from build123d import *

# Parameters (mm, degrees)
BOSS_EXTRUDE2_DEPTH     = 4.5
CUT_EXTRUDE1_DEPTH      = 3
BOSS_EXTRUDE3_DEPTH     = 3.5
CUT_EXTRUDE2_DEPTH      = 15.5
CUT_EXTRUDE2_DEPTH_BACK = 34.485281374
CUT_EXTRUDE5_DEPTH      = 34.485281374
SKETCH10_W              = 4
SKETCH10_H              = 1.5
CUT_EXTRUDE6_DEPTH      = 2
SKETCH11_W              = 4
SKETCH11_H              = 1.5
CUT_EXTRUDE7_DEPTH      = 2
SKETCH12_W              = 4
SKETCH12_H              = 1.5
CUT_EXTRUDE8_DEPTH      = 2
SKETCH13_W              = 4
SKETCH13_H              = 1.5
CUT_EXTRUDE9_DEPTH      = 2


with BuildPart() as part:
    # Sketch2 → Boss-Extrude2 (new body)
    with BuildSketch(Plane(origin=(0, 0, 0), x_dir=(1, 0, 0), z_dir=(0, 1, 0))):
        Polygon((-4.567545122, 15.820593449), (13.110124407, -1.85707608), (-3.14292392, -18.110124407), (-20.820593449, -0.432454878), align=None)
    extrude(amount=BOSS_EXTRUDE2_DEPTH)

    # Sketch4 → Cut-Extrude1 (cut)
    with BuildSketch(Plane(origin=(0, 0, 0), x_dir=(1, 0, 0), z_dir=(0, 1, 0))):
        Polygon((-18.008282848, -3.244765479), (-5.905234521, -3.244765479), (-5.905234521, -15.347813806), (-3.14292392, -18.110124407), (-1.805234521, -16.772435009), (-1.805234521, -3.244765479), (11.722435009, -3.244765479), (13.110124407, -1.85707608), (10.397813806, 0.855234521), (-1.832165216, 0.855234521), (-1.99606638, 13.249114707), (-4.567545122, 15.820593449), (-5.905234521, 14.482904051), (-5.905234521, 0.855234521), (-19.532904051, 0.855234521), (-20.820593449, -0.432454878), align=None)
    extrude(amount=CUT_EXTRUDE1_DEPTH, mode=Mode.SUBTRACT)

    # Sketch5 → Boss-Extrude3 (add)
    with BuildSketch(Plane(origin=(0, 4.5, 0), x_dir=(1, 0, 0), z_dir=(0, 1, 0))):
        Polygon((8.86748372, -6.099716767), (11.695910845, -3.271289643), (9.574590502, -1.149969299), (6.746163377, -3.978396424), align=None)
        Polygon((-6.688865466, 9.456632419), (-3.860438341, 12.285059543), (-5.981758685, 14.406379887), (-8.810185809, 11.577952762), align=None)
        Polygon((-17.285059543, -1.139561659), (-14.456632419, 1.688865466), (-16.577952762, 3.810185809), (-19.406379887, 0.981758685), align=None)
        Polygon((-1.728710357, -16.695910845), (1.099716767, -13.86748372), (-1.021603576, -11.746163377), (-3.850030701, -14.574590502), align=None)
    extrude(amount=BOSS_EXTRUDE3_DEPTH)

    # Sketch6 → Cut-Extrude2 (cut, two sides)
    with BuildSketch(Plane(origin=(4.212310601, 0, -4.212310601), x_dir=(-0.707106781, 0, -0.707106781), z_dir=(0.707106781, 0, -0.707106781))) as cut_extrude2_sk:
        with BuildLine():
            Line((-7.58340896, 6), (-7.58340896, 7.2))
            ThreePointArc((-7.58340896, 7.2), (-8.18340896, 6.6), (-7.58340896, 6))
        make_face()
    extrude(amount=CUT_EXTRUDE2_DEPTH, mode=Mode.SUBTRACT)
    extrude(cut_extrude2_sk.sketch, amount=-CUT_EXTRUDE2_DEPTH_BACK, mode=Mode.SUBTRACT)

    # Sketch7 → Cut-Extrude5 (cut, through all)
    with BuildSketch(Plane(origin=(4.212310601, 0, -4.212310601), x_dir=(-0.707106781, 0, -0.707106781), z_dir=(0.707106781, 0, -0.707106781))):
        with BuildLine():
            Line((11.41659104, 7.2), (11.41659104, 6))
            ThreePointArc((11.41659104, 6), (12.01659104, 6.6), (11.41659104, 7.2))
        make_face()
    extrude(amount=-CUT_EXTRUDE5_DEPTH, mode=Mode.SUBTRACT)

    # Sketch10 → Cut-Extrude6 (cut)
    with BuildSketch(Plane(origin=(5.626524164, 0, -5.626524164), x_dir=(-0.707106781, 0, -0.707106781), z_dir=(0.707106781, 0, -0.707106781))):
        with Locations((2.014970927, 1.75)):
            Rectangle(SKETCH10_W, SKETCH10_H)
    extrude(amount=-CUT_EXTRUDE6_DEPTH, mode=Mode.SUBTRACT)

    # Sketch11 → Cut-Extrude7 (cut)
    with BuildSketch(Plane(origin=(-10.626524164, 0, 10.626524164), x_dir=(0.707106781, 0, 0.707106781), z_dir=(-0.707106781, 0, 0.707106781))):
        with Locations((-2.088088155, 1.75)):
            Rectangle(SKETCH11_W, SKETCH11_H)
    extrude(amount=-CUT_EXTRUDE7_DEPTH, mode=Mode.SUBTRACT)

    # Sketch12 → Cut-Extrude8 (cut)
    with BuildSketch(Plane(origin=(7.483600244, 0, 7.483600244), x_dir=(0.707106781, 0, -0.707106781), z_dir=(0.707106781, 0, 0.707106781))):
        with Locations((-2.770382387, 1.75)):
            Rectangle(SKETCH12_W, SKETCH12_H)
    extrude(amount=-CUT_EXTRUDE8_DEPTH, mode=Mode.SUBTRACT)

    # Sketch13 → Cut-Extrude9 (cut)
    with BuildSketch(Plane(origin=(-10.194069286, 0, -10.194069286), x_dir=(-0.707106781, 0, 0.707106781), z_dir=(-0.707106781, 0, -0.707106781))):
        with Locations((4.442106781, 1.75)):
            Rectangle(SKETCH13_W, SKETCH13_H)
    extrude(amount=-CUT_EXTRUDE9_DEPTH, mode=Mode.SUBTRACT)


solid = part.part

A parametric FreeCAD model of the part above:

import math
import FreeCAD as App
import Part
import Sketcher

V = App.Vector
Q = App.Units.Quantity

doc = App.newDocument("Part")
body = doc.addObject("PartDesign::Body", "Body")

sketch1 = doc.addObject("Sketcher::SketchObject", "Sketch")
body.addObject(sketch1)
sketch1.AttachmentSupport = (doc.XZ_Plane, [""])
sketch1.MapMode = "FlatFace"
sketch1.addGeometry([
    Part.LineSegment(V(13, 2, 0), V(-5, -16, 0)),
    Part.LineSegment(V(-5, -16, 0), V(-21, 0, 0)),
    Part.LineSegment(V(-21, 0, 0), V(-3, 18, 0)),
    Part.LineSegment(V(-3, 18, 0), V(13, 2, 0)),
], False)
sketch1.addConstraint([
    Sketcher.Constraint("Coincident", 0, 2, 1, 1),
    Sketcher.Constraint("Coincident", 1, 2, 2, 1),
    Sketcher.Constraint("Coincident", 2, 2, 3, 1),
    Sketcher.Constraint("Coincident", 3, 2, 0, 1),
    Sketcher.Constraint("Perpendicular", 0, 1),
    Sketcher.Constraint("Perpendicular", 1, 2),
    Sketcher.Constraint("Perpendicular", 2, 3),
    Sketcher.Constraint("Angle", 0, Q("-135 deg")),
    Sketcher.Constraint("Distance", 0, 25.0),
    Sketcher.Constraint("Distance", 1, 22.985281),
    Sketcher.Constraint("DistanceX", 0, 2, -1, 1, 4.567545),
    Sketcher.Constraint("DistanceY", 0, 2, -1, 1, 15.820593),
])
pad1 = doc.addObject("PartDesign::Pad", "Pad")
body.addObject(pad1)
pad1.Profile = sketch1
pad1.Length = 4.5
pad1.Reversed = True

sketch2 = doc.addObject("Sketcher::SketchObject", "Sketch001")
body.addObject(sketch2)
sketch2.AttachmentSupport = (doc.XZ_Plane, [""])
sketch2.MapMode = "FlatFace"
sketch2.addGeometry([
    Part.LineSegment(V(-18, 3.2, 0), V(-5.9, 3.2, 0)),
    Part.LineSegment(V(-5.9, 3.2, 0), V(-5.9, 15.3, 0)),
    Part.LineSegment(V(-5.9, 15.3, 0), V(-3.1, 18.1, 0)),
    Part.LineSegment(V(-3.1, 18.1, 0), V(-1.8, 16.8, 0)),
    Part.LineSegment(V(-1.8, 16.8, 0), V(-1.8, 3.2, 0)),
    Part.LineSegment(V(-1.8, 3.2, 0), V(11.7, 3.2, 0)),
    Part.LineSegment(V(11.7, 3.2, 0), V(13.1, 1.9, 0)),
    Part.LineSegment(V(13.1, 1.9, 0), V(10.4, -0.9, 0)),
    Part.LineSegment(V(10.4, -0.9, 0), V(-1.8, -0.9, 0)),
    Part.LineSegment(V(-1.8, -0.9, 0), V(-2, -13.2, 0)),
    Part.LineSegment(V(-2, -13.2, 0), V(-4.6, -15.8, 0)),
    Part.LineSegment(V(-4.6, -15.8, 0), V(-5.9, -14.5, 0)),
    Part.LineSegment(V(-5.9, -14.5, 0), V(-5.9, -0.9, 0)),
    Part.LineSegment(V(-5.9, -0.9, 0), V(-19.5, -0.9, 0)),
    Part.LineSegment(V(-19.5, -0.9, 0), V(-20.8, 0.4, 0)),
    Part.LineSegment(V(-20.8, 0.4, 0), V(-18, 3.2, 0)),
], False)
sketch2.addConstraint([
    Sketcher.Constraint("Coincident", 0, 2, 1, 1),
    Sketcher.Constraint("Coincident", 1, 2, 2, 1),
    Sketcher.Constraint("Coincident", 2, 2, 3, 1),
    Sketcher.Constraint("Coincident", 3, 2, 4, 1),
    Sketcher.Constraint("Coincident", 4, 2, 5, 1),
    Sketcher.Constraint("Coincident", 5, 2, 6, 1),
    Sketcher.Constraint("Coincident", 6, 2, 7, 1),
    Sketcher.Constraint("Coincident", 7, 2, 8, 1),
    Sketcher.Constraint("Coincident", 8, 2, 9, 1),
    Sketcher.Constraint("Coincident", 9, 2, 10, 1),
    Sketcher.Constraint("Coincident", 10, 2, 11, 1),
    Sketcher.Constraint("Coincident", 11, 2, 12, 1),
    Sketcher.Constraint("Coincident", 12, 2, 13, 1),
    Sketcher.Constraint("Coincident", 13, 2, 14, 1),
    Sketcher.Constraint("Coincident", 14, 2, 15, 1),
    Sketcher.Constraint("Coincident", 15, 2, 0, 1),
    Sketcher.Constraint("Horizontal", 0),
    Sketcher.Constraint("Vertical", 1),
    Sketcher.Constraint("Vertical", 4),
    Sketcher.Constraint("Horizontal", 5),
    Sketcher.Constraint("Horizontal", 8),
    Sketcher.Constraint("Vertical", 12),
    Sketcher.Constraint("Horizontal", 13),
    Sketcher.Constraint("Perpendicular", 2, 3),
    Sketcher.Constraint("Parallel", 3, 6),
    Sketcher.Constraint("Perpendicular", 6, 7),
    Sketcher.Constraint("Parallel", 7, 10),
    Sketcher.Constraint("Perpendicular", 10, 11),
    Sketcher.Constraint("Parallel", 11, 14),
    Sketcher.Constraint("Perpendicular", 14, 15),
    Sketcher.Constraint("Horizontal", 0, 2, 4, 2),
    Sketcher.Constraint("Horizontal", 8, 2, 12, 2),
    Sketcher.Constraint("Vertical", 1, 2, 11, 2),
    Sketcher.Constraint("Equal", 0, 1),
    Sketcher.Constraint("Equal", 5, 4),
    Sketcher.Constraint("Equal", 13, 12),
    Sketcher.Constraint("Equal", 3, 11),
    Sketcher.Constraint("Angle", 2, Q("45 deg")),
    Sketcher.Constraint("DistanceX", 1, 2, 3, 2, 4.1),
    Sketcher.Constraint("DistanceY", 7, 2, 5, 2, 4.1),
    Sketcher.Constraint("DistanceX", 0, 1, 0, 2, 12.103048),
    Sketcher.Constraint("DistanceX", 5, 1, 5, 2, 13.52767),
    Sketcher.Constraint("DistanceX", 8, 2, 8, 1, 12.229979),
    Sketcher.Constraint("DistanceX", 13, 2, 13, 1, 13.62767),
    Sketcher.Constraint("DistanceX", 8, 2, 5, 2, 13.5546),
    Sketcher.Constraint("DistanceX", 9, 2, 8, 2, 0.163901),
    Sketcher.Constraint("DistanceX", 0, 2, -1, 1, 5.905235),
    Sketcher.Constraint("DistanceY", -1, 1, 0, 2, 3.244765),
])
pocket1 = doc.addObject("PartDesign::Pocket", "Pocket")
body.addObject(pocket1)
pocket1.Profile = sketch2
pocket1.Length = 3

sketch3 = doc.addObject("Sketcher::SketchObject", "Sketch002")
body.addObject(sketch3)
sketch3.AttachmentSupport = (doc.XZ_Plane, [""])
sketch3.MapMode = "FlatFace"
sketch3.AttachmentOffset = App.Placement(V(0, 0, -4.5), App.Rotation())
sketch3.addGeometry([
    Part.LineSegment(V(8.9, 6.1, 0), V(11.7, 3.3, 0)),
    Part.LineSegment(V(11.7, 3.3, 0), V(9.6, 1.1, 0)),
    Part.LineSegment(V(9.6, 1.1, 0), V(6.7, 4, 0)),
    Part.LineSegment(V(6.7, 4, 0), V(8.9, 6.1, 0)),
    Part.LineSegment(V(-6.7, -9.5, 0), V(-3.9, -12.3, 0)),
    Part.LineSegment(V(-3.9, -12.3, 0), V(-6, -14.4, 0)),
    Part.LineSegment(V(-6, -14.4, 0), V(-8.8, -11.6, 0)),
    Part.LineSegment(V(-8.8, -11.6, 0), V(-6.7, -9.5, 0)),
    Part.LineSegment(V(-17.3, 1.1, 0), V(-14.5, -1.7, 0)),
    Part.LineSegment(V(-14.5, -1.7, 0), V(-16.6, -3.8, 0)),
    Part.LineSegment(V(-16.6, -3.8, 0), V(-19.4, -1, 0)),
    Part.LineSegment(V(-19.4, -1, 0), V(-17.3, 1.1, 0)),
    Part.LineSegment(V(-1.7, 16.7, 0), V(1.1, 13.9, 0)),
    Part.LineSegment(V(1.1, 13.9, 0), V(-1, 11.7, 0)),
    Part.LineSegment(V(-1, 11.7, 0), V(-3.9, 14.6, 0)),
    Part.LineSegment(V(-3.9, 14.6, 0), V(-1.7, 16.7, 0)),
], False)
sketch3.addConstraint([
    Sketcher.Constraint("Coincident", 0, 2, 1, 1),
    Sketcher.Constraint("Coincident", 1, 2, 2, 1),
    Sketcher.Constraint("Coincident", 2, 2, 3, 1),
    Sketcher.Constraint("Coincident", 3, 2, 0, 1),
    Sketcher.Constraint("Coincident", 4, 2, 5, 1),
    Sketcher.Constraint("Coincident", 5, 2, 6, 1),
    Sketcher.Constraint("Coincident", 6, 2, 7, 1),
    Sketcher.Constraint("Coincident", 7, 2, 4, 1),
    Sketcher.Constraint("Coincident", 8, 2, 9, 1),
    Sketcher.Constraint("Coincident", 9, 2, 10, 1),
    Sketcher.Constraint("Coincident", 10, 2, 11, 1),
    Sketcher.Constraint("Coincident", 11, 2, 8, 1),
    Sketcher.Constraint("Coincident", 12, 2, 13, 1),
    Sketcher.Constraint("Coincident", 13, 2, 14, 1),
    Sketcher.Constraint("Coincident", 14, 2, 15, 1),
    Sketcher.Constraint("Coincident", 15, 2, 12, 1),
    Sketcher.Constraint("Perpendicular", 0, 1),
    Sketcher.Constraint("Perpendicular", 1, 2),
    Sketcher.Constraint("Perpendicular", 2, 3),
    Sketcher.Constraint("Perpendicular", 3, 4),
    Sketcher.Constraint("Perpendicular", 4, 5),
    Sketcher.Constraint("Perpendicular", 5, 6),
    Sketcher.Constraint("Perpendicular", 6, 7),
    Sketcher.Constraint("Perpendicular", 7, 8),
    Sketcher.Constraint("Perpendicular", 8, 9),
    Sketcher.Constraint("Perpendicular", 9, 10),
    Sketcher.Constraint("Perpendicular", 10, 11),
    Sketcher.Constraint("Perpendicular", 11, 12),
    Sketcher.Constraint("Perpendicular", 12, 13),
    Sketcher.Constraint("Perpendicular", 13, 14),
    Sketcher.Constraint("Perpendicular", 14, 15),
    Sketcher.Constraint("Equal", 2, 4),
    Sketcher.Constraint("Equal", 3, 5),
    Sketcher.Constraint("Equal", 6, 8),
    Sketcher.Constraint("Equal", 7, 9),
    Sketcher.Constraint("Equal", 10, 12),
    Sketcher.Constraint("Equal", 11, 13),
    Sketcher.Constraint("Angle", 0, Q("-45 deg")),
    Sketcher.Constraint("Distance", 0, 4.0),
    Sketcher.Constraint("Distance", 1, 3.0),
    Sketcher.Constraint("DistanceX", 4, 2, 2, 2, 10.606602),
    Sketcher.Constraint("DistanceY", 7, 2, 1, 2, 10.606602),
    Sketcher.Constraint("DistanceX", -1, 1, 0, 2, 11.695911),
    Sketcher.Constraint("DistanceY", -1, 1, 0, 2, 3.27129),
    Sketcher.Constraint("DistanceX", 10, 2, -1, 1, 19.40638),
    Sketcher.Constraint("DistanceY", 10, 2, -1, 1, 0.981759),
    Sketcher.Constraint("DistanceX", 14, 2, -1, 1, 3.850031),
    Sketcher.Constraint("DistanceY", -1, 1, 14, 2, 14.574591),
])
pad2 = doc.addObject("PartDesign::Pad", "Pad001")
body.addObject(pad2)
pad2.Profile = sketch3
pad2.Length = 3.5
pad2.Reversed = True

sketch4 = doc.addObject("Sketcher::SketchObject", "Sketch003")
body.addObject(sketch4)
sketch4.Placement = App.Placement(V(4.212311, 0, -4.212311), App.Rotation(V(-0.707106781, 0, -0.707106781), V(0, 0.999999999, 0), V(0.707106781, 0, -0.707106781), "ZXY"))
sketch4.addGeometry([
    Part.LineSegment(V(-7.6, 6, 0), V(-7.6, 7.2, 0)),
    Part.ArcOfCircle(Part.Circle(V(-7.6, 6.6, 0), V(0, 0, 1), 0.6), math.radians(90), math.radians(270)),
], False)
sketch4.addConstraint([
    Sketcher.Constraint("Coincident", 0, 1, 1, 2),
    Sketcher.Constraint("Coincident", 1, 1, 0, 2),
    Sketcher.Constraint("Vertical", 0),
    Sketcher.Constraint("Vertical", 1, 3, 0, 1),
    Sketcher.Constraint("Radius", 1, 0.6),
    Sketcher.Constraint("DistanceY", -1, 1, 0, 1, 6.0),
    Sketcher.Constraint("DistanceX", 1, 3, -1, 1, 7.583409),
])
pocket2 = doc.addObject("PartDesign::Pocket", "Pocket001")
body.addObject(pocket2)
pocket2.Profile = sketch4
pocket2.Type = "ThroughAll"
pocket2.Midplane = True

sketch5 = doc.addObject("Sketcher::SketchObject", "Sketch004")
body.addObject(sketch5)
sketch5.Placement = App.Placement(V(4.212311, 0, -4.212311), App.Rotation(V(-0.707106781, 0, -0.707106781), V(0, 0.999999999, 0), V(0.707106781, 0, -0.707106781), "ZXY"))
sketch5.addGeometry([
    Part.LineSegment(V(11.4, 7.2, 0), V(11.4, 6, 0)),
    Part.ArcOfCircle(Part.Circle(V(11.4, 6.6, 0), V(0, 0, 1), 0.6), math.radians(-90), math.radians(90)),
], False)
sketch5.addConstraint([
    Sketcher.Constraint("Coincident", 0, 1, 1, 2),
    Sketcher.Constraint("Coincident", 1, 1, 0, 2),
    Sketcher.Constraint("Vertical", 0),
    Sketcher.Constraint("Vertical", 1, 3, 0, 1),
    Sketcher.Constraint("Radius", 1, 0.6),
    Sketcher.Constraint("DistanceY", -1, 1, 1, 1, 6.0),
    Sketcher.Constraint("DistanceX", -1, 1, 1, 3, 11.416591),
])
pocket3 = doc.addObject("PartDesign::Pocket", "Pocket002")
body.addObject(pocket3)
pocket3.Profile = sketch5
pocket3.Type = "ThroughAll"

sketch6 = doc.addObject("Sketcher::SketchObject", "Sketch005")
body.addObject(sketch6)
sketch6.Placement = App.Placement(V(5.626524, 0, -5.626524), App.Rotation(V(-0.707106781, 0, -0.707106781), V(0, 0.999999999, 0), V(0.707106781, 0, -0.707106781), "ZXY"))
sketch6.addGeometry([
    Part.LineSegment(V(0, 2.5, 0), V(0, 1, 0)),
    Part.LineSegment(V(0, 1, 0), V(4, 1, 0)),
    Part.LineSegment(V(4, 1, 0), V(4, 2.5, 0)),
    Part.LineSegment(V(4, 2.5, 0), V(0, 2.5, 0)),
], False)
sketch6.addConstraint([
    Sketcher.Constraint("Coincident", 0, 2, 1, 1),
    Sketcher.Constraint("Coincident", 1, 2, 2, 1),
    Sketcher.Constraint("Coincident", 2, 2, 3, 1),
    Sketcher.Constraint("Coincident", 3, 2, 0, 1),
    Sketcher.Constraint("Vertical", 0),
    Sketcher.Constraint("Horizontal", 1),
    Sketcher.Constraint("Vertical", 2),
    Sketcher.Constraint("Horizontal", 3),
    Sketcher.Constraint("DistanceX", 1, 1, 1, 2, 4.0),
    Sketcher.Constraint("DistanceY", 0, 2, 0, 1, 1.5),
    Sketcher.Constraint("DistanceY", -1, 1, 0, 2, 1.0),
    Sketcher.Constraint("DistanceX", -1, 1, 0, 2, 0.014971),
])
pocket4 = doc.addObject("PartDesign::Pocket", "Pocket003")
body.addObject(pocket4)
pocket4.Profile = sketch6
pocket4.Length = 2

sketch7 = doc.addObject("Sketcher::SketchObject", "Sketch006")
body.addObject(sketch7)
sketch7.Placement = App.Placement(V(-10.626524, 0, 10.626524), App.Rotation(V(0.707106781, 0, 0.707106781), V(0, 0.999999999, 0), V(-0.707106781, 0, 0.707106781), "ZXY"))
sketch7.addGeometry([
    Part.LineSegment(V(-4.1, 2.5, 0), V(-4.1, 1, 0)),
    Part.LineSegment(V(-4.1, 1, 0), V(-0.1, 1, 0)),
    Part.LineSegment(V(-0.1, 1, 0), V(-0.1, 2.5, 0)),
    Part.LineSegment(V(-0.1, 2.5, 0), V(-4.1, 2.5, 0)),
], False)
sketch7.addConstraint([
    Sketcher.Constraint("Coincident", 0, 2, 1, 1),
    Sketcher.Constraint("Coincident", 1, 2, 2, 1),
    Sketcher.Constraint("Coincident", 2, 2, 3, 1),
    Sketcher.Constraint("Coincident", 3, 2, 0, 1),
    Sketcher.Constraint("Vertical", 0),
    Sketcher.Constraint("Horizontal", 1),
    Sketcher.Constraint("Vertical", 2),
    Sketcher.Constraint("Horizontal", 3),
    Sketcher.Constraint("DistanceX", 1, 1, 1, 2, 4.0),
    Sketcher.Constraint("DistanceY", 0, 2, 0, 1, 1.5),
    Sketcher.Constraint("DistanceY", -1, 1, 0, 2, 1.0),
    Sketcher.Constraint("DistanceX", 0, 2, -1, 1, 4.088088),
])
pocket5 = doc.addObject("PartDesign::Pocket", "Pocket004")
body.addObject(pocket5)
pocket5.Profile = sketch7
pocket5.Length = 2

sketch8 = doc.addObject("Sketcher::SketchObject", "Sketch007")
body.addObject(sketch8)
sketch8.Placement = App.Placement(V(7.4836, 0, 7.4836), App.Rotation(V(0.707106781, 0, -0.707106781), V(0, 0.999999999, 0), V(0.707106781, 0, 0.707106781), "ZXY"))
sketch8.addGeometry([
    Part.LineSegment(V(-4.8, 2.5, 0), V(-4.8, 1, 0)),
    Part.LineSegment(V(-4.8, 1, 0), V(-0.8, 1, 0)),
    Part.LineSegment(V(-0.8, 1, 0), V(-0.8, 2.5, 0)),
    Part.LineSegment(V(-0.8, 2.5, 0), V(-4.8, 2.5, 0)),
], False)
sketch8.addConstraint([
    Sketcher.Constraint("Coincident", 0, 2, 1, 1),
    Sketcher.Constraint("Coincident", 1, 2, 2, 1),
    Sketcher.Constraint("Coincident", 2, 2, 3, 1),
    Sketcher.Constraint("Coincident", 3, 2, 0, 1),
    Sketcher.Constraint("Vertical", 0),
    Sketcher.Constraint("Horizontal", 1),
    Sketcher.Constraint("Vertical", 2),
    Sketcher.Constraint("Horizontal", 3),
    Sketcher.Constraint("DistanceX", 1, 1, 1, 2, 4.0),
    Sketcher.Constraint("DistanceY", 0, 2, 0, 1, 1.5),
    Sketcher.Constraint("DistanceY", -1, 1, 0, 2, 1.0),
    Sketcher.Constraint("DistanceX", 0, 2, -1, 1, 4.770382),
])
pocket6 = doc.addObject("PartDesign::Pocket", "Pocket005")
body.addObject(pocket6)
pocket6.Profile = sketch8
pocket6.Length = 2

sketch9 = doc.addObject("Sketcher::SketchObject", "Sketch008")
body.addObject(sketch9)
sketch9.Placement = App.Placement(V(-10.194069, 0, -10.194069), App.Rotation(V(-0.707106781, 0, 0.707106781), V(0, 0.999999999, 0), V(-0.707106781, 0, -0.707106781), "ZXY"))
sketch9.addGeometry([
    Part.LineSegment(V(2.4, 2.5, 0), V(2.4, 1, 0)),
    Part.LineSegment(V(2.4, 1, 0), V(6.4, 1, 0)),
    Part.LineSegment(V(6.4, 1, 0), V(6.4, 2.5, 0)),
    Part.LineSegment(V(6.4, 2.5, 0), V(2.4, 2.5, 0)),
], False)
sketch9.addConstraint([
    Sketcher.Constraint("Coincident", 0, 2, 1, 1),
    Sketcher.Constraint("Coincident", 1, 2, 2, 1),
    Sketcher.Constraint("Coincident", 2, 2, 3, 1),
    Sketcher.Constraint("Coincident", 3, 2, 0, 1),
    Sketcher.Constraint("Vertical", 0),
    Sketcher.Constraint("Horizontal", 1),
    Sketcher.Constraint("Vertical", 2),
    Sketcher.Constraint("Horizontal", 3),
    Sketcher.Constraint("DistanceX", 1, 1, 1, 2, 4.0),
    Sketcher.Constraint("DistanceY", 0, 2, 0, 1, 1.5),
    Sketcher.Constraint("DistanceY", -1, 1, 0, 2, 1.0),
    Sketcher.Constraint("DistanceX", -1, 1, 0, 2, 2.442107),
])
pocket7 = doc.addObject("PartDesign::Pocket", "Pocket006")
body.addObject(pocket7)
pocket7.Profile = sketch9
pocket7.Length = 2

doc.recompute()
